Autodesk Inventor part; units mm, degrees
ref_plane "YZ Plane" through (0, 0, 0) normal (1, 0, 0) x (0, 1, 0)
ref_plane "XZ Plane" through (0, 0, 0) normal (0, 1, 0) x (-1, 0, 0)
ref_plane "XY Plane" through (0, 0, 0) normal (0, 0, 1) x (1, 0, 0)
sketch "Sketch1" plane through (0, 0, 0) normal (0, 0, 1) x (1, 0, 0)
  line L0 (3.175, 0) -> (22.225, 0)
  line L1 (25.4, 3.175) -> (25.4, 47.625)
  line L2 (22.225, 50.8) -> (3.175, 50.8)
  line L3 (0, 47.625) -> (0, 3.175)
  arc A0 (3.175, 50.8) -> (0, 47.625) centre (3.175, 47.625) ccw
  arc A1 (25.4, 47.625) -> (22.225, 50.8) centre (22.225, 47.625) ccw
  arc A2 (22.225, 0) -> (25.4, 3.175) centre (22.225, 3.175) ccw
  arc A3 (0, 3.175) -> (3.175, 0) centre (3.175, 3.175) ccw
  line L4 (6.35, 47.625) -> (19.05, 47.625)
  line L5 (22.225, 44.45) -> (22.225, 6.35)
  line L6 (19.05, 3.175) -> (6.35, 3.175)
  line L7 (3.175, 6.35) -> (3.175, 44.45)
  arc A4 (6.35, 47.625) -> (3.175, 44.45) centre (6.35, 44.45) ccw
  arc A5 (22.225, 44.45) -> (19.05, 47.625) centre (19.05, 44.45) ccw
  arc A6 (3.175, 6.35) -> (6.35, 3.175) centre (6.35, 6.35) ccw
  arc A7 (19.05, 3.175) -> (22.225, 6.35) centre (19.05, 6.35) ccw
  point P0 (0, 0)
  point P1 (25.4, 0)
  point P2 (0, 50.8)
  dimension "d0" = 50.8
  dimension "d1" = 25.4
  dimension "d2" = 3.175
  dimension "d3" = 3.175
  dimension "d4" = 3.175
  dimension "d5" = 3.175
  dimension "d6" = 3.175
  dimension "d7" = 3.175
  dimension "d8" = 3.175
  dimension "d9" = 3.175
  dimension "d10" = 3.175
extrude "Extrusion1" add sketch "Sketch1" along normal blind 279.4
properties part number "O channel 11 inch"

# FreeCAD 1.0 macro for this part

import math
import FreeCAD as App
import Part
import Sketcher
from FreeCAD import Vector
Q = App.Units.Quantity

doc = App.newDocument("Part")
body = doc.addObject("PartDesign::Body", "Body")

# Sketch on XY plane
sketch1 = doc.addObject("Sketcher::SketchObject", "Sketch")
body.addObject(sketch1)
sketch1.AttachmentSupport = (doc.XY_Plane, [""])
sketch1.MapMode = "FlatFace"
sketch1.addGeometry(Part.ArcOfCircle(Part.Circle(Vector(3.2, 3.2, 0), Vector(0, 0, 1), 3.2), math.radians(180), math.radians(270)), False)
sketch1.addGeometry(Part.LineSegment(Vector(3.2, 0, 0), Vector(22.2, 0, 0)), False)
sketch1.addGeometry(Part.ArcOfCircle(Part.Circle(Vector(22.2, 3.2, 0), Vector(0, 0, 1), 3.2), math.radians(-90), math.radians(0)), False)
sketch1.addGeometry(Part.LineSegment(Vector(25.4, 3.2, 0), Vector(25.4, 47.6, 0)), False)
sketch1.addGeometry(Part.ArcOfCircle(Part.Circle(Vector(22.2, 47.6, 0), Vector(0, 0, 1), 3.2), math.radians(0), math.radians(90)), False)
sketch1.addGeometry(Part.LineSegment(Vector(22.2, 50.8, 0), Vector(3.2, 50.8, 0)), False)
sketch1.addGeometry(Part.ArcOfCircle(Part.Circle(Vector(3.2, 47.6, 0), Vector(0, 0, 1), 3.2), math.radians(90), math.radians(180)), False)
sketch1.addGeometry(Part.LineSegment(Vector(0, 47.6, 0), Vector(0, 3.2, 0)), False)
sketch1.addGeometry(Part.ArcOfCircle(Part.Circle(Vector(6.3, 44.5, 0), Vector(0, 0, 1), 3.2), math.radians(90), math.radians(180)), False)
sketch1.addGeometry(Part.LineSegment(Vector(6.3, 47.6, 0), Vector(19.1, 47.6, 0)), False)
sketch1.addGeometry(Part.ArcOfCircle(Part.Circle(Vector(19.1, 44.5, 0), Vector(0, 0, 1), 3.2), math.radians(0), math.radians(90)), False)
sketch1.addGeometry(Part.LineSegment(Vector(22.2, 44.5, 0), Vector(22.2, 6.3, 0)), False)
sketch1.addGeometry(Part.ArcOfCircle(Part.Circle(Vector(19.1, 6.3, 0), Vector(0, 0, 1), 3.2), math.radians(-90), math.radians(0)), False)
sketch1.addGeometry(Part.LineSegment(Vector(19.1, 3.2, 0), Vector(6.3, 3.2, 0)), False)
sketch1.addGeometry(Part.ArcOfCircle(Part.Circle(Vector(6.3, 6.3, 0), Vector(0, 0, 1), 3.2), math.radians(180), math.radians(270)), False)
sketch1.addGeometry(Part.LineSegment(Vector(3.2, 6.3, 0), Vector(3.2, 44.5, 0)), False)
sketch1.addConstraint(Sketcher.Constraint("Tangent", 0, 2, 1, 1))
sketch1.addConstraint(Sketcher.Constraint("Tangent", 1, 2, 2, 1))
sketch1.addConstraint(Sketcher.Constraint("Tangent", 2, 2, 3, 1))
sketch1.addConstraint(Sketcher.Constraint("Tangent", 3, 2, 4, 1))
sketch1.addConstraint(Sketcher.Constraint("Tangent", 4, 2, 5, 1))
sketch1.addConstraint(Sketcher.Constraint("Tangent", 5, 2, 6, 1))
sketch1.addConstraint(Sketcher.Constraint("Tangent", 6, 2, 7, 1))
sketch1.addConstraint(Sketcher.Constraint("Tangent", 7, 2, 0, 1))
sketch1.addConstraint(Sketcher.Constraint("Tangent", 8, 1, 9, 1))
sketch1.addConstraint(Sketcher.Constraint("Tangent", 9, 2, 10, 2))
sketch1.addConstraint(Sketcher.Constraint("Tangent", 10, 1, 11, 1))
sketch1.addConstraint(Sketcher.Constraint("Tangent", 11, 2, 12, 2))
sketch1.addConstraint(Sketcher.Constraint("Tangent", 12, 1, 13, 1))
sketch1.addConstraint(Sketcher.Constraint("Tangent", 13, 2, 14, 2))
sketch1.addConstraint(Sketcher.Constraint("Tangent", 14, 1, 15, 1))
sketch1.addConstraint(Sketcher.Constraint("Tangent", 15, 2, 8, 2))
sketch1.addConstraint(Sketcher.Constraint("Horizontal", 1))
sketch1.addConstraint(Sketcher.Constraint("Vertical", 3))
sketch1.addConstraint(Sketcher.Constraint("Horizontal", 5))
sketch1.addConstraint(Sketcher.Constraint("Vertical", 7))
sketch1.addConstraint(Sketcher.Constraint("Horizontal", 9))
sketch1.addConstraint(Sketcher.Constraint("Vertical", 11))
sketch1.addConstraint(Sketcher.Constraint("Horizontal", 13))
sketch1.addConstraint(Sketcher.Constraint("Vertical", 15))
sketch1.addConstraint(Sketcher.Constraint("Equal", 0, 2))
sketch1.addConstraint(Sketcher.Constraint("Equal", 2, 4))
sketch1.addConstraint(Sketcher.Constraint("Equal", 4, 6))
sketch1.addConstraint(Sketcher.Constraint("Equal", 6, 8))
sketch1.addConstraint(Sketcher.Constraint("Equal", 8, 10))
sketch1.addConstraint(Sketcher.Constraint("Equal", 10, 12))
sketch1.addConstraint(Sketcher.Constraint("Equal", 12, 14))
sketch1.addConstraint(Sketcher.Constraint("PointOnObject", 0, 2, -1))
sketch1.addConstraint(Sketcher.Constraint("PointOnObject", 6, 2, -2))
sketch1.addConstraint(Sketcher.Constraint("Horizontal", 6, 2, 8, 1))
sketch1.addConstraint(Sketcher.Constraint("Horizontal", 7, 2, 12, 1))
sketch1.addConstraint(Sketcher.Constraint("Vertical", 4, 2, 10, 1))
sketch1.addConstraint(Sketcher.Constraint("Vertical", 5, 2, 14, 1))
sketch1.addConstraint(Sketcher.Constraint("DistanceX", -1, 1, 2, 2, Q("1 in")))
sketch1.addConstraint(Sketcher.Constraint("DistanceY", -1, 1, 4, 2, Q("2 in")))
sketch1.addConstraint(Sketcher.Constraint("Radius", 0, Q("0.125 in")))
pad1 = doc.addObject("PartDesign::Pad", "Pad")
body.addObject(pad1)
pad1.Profile = sketch1
pad1.Length = Q("11 in")

doc.recompute()
